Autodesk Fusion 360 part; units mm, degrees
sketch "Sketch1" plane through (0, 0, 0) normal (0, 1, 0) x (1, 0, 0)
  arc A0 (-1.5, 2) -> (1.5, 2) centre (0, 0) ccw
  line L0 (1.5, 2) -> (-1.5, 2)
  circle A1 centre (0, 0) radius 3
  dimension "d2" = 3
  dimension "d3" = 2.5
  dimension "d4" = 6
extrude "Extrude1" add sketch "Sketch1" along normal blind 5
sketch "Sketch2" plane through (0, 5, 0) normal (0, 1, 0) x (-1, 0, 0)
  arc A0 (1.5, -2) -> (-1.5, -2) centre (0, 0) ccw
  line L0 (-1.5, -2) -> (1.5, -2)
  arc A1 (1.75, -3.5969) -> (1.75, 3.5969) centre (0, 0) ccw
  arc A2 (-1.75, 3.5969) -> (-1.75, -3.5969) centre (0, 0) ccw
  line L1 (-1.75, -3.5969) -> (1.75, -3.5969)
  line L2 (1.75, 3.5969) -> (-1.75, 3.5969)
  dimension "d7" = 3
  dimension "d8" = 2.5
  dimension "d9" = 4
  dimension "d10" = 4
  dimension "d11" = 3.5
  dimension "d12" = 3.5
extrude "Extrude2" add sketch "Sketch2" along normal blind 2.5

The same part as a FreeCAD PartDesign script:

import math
import FreeCAD as App
import Part
import Sketcher

V = App.Vector

doc = App.newDocument("Part")
body = doc.addObject("PartDesign::Body", "Body")

# Sketch on XZ plane
sketch1 = body.newObject("Sketcher::SketchObject", "Sketch")
sketch1.AttachmentSupport = (doc.getObject("XZ_Plane"), [""])
sketch1.MapMode = "FlatFace"
sketch1.addGeometry(Part.Circle(V(0, 0, 0), V(0, 0, 1), 3), False)
sketch1.addGeometry(Part.ArcOfCircle(Part.Circle(V(0, 0, 0), V(0, 0, 1), 2.5), math.radians(-53.130102), math.radians(233.130102)), False)
sketch1.addGeometry(Part.LineSegment(V(-1.5, -2, 0), V(1.5, -2, 0)), False)
sketch1.addConstraint(Sketcher.Constraint("Coincident", 1, 1, 2, 2))
sketch1.addConstraint(Sketcher.Constraint("Coincident", 2, 1, 1, 2))
sketch1.addConstraint(Sketcher.Constraint("Horizontal", 2))
sketch1.addConstraint(Sketcher.Constraint("Coincident", 0, 3, -1, 1))
sketch1.addConstraint(Sketcher.Constraint("Coincident", 1, 3, -1, 1))
sketch1.addConstraint(Sketcher.Constraint("Diameter", 0, 6.0))
sketch1.addConstraint(Sketcher.Constraint("Radius", 1, 2.5))
sketch1.addConstraint(Sketcher.Constraint("DistanceX", 2, 1, 2, 2, 3.0))
pad1 = body.newObject("PartDesign::Pad", "Pad")
pad1.Profile = sketch1
pad1.Length = 5
pad1.Reversed = True

# Sketch on XZ plane
sketch2 = body.newObject("Sketcher::SketchObject", "Sketch001")
sketch2.AttachmentSupport = (doc.getObject("XZ_Plane"), [""])
sketch2.MapMode = "FlatFace"
sketch2.AttachmentOffset = App.Placement(V(0, 0, -5), App.Rotation())
sketch2.addGeometry(Part.LineSegment(V(1.75, -3.5969, 0), V(-1.75, -3.5969, 0)), False)
sketch2.addGeometry(Part.ArcOfCircle(Part.Circle(V(0, 0, 0), V(0, 0, 1), 4.000024), math.radians(115.944315), math.radians(244.055685)), False)
sketch2.addGeometry(Part.LineSegment(V(-1.75, 3.5969, 0), V(1.75, 3.5969, 0)), False)
sketch2.addGeometry(Part.ArcOfCircle(Part.Circle(V(0, 0, 0), V(0, 0, 1), 4.000024), math.radians(-64.055685), math.radians(64.055685)), False)
sketch2.addGeometry(Part.ArcOfCircle(Part.Circle(V(0, 0, 0), V(0, 0, 1), 2.5), math.radians(-53.130102), math.radians(233.130102)), False)
sketch2.addGeometry(Part.LineSegment(V(-1.5, -2, 0), V(1.5, -2, 0)), False)
sketch2.addConstraint(Sketcher.Constraint("Coincident", 0, 2, 1, 2))
sketch2.addConstraint(Sketcher.Constraint("Coincident", 1, 1, 2, 1))
sketch2.addConstraint(Sketcher.Constraint("Coincident", 2, 2, 3, 2))
sketch2.addConstraint(Sketcher.Constraint("Coincident", 3, 1, 0, 1))
sketch2.addConstraint(Sketcher.Constraint("Coincident", 4, 1, 5, 2))
sketch2.addConstraint(Sketcher.Constraint("Coincident", 5, 1, 4, 2))
sketch2.addConstraint(Sketcher.Constraint("Horizontal", 0))
sketch2.addConstraint(Sketcher.Constraint("Horizontal", 2))
sketch2.addConstraint(Sketcher.Constraint("Horizontal", 5))
sketch2.addConstraint(Sketcher.Constraint("Coincident", 1, 3, -1, 1))
sketch2.addConstraint(Sketcher.Constraint("Coincident", 3, 3, -1, 1))
sketch2.addConstraint(Sketcher.Constraint("Coincident", 4, 3, -1, 1))
sketch2.addConstraint(Sketcher.Constraint("Equal", 1, 3))
sketch2.addConstraint(Sketcher.Constraint("Vertical", 0, 2, 1, 1))
sketch2.addConstraint(Sketcher.Constraint("Radius", 1, 4.0))
sketch2.addConstraint(Sketcher.Constraint("Radius", 4, 2.5))
sketch2.addConstraint(Sketcher.Constraint("DistanceX", 5, 1, 5, 2, 3.0))
sketch2.addConstraint(Sketcher.Constraint("DistanceX", 0, 2, 0, 1, 3.5))
pad2 = body.newObject("PartDesign::Pad", "Pad001")
pad2.Profile = sketch2
pad2.Length = 2.5
pad2.Reversed = True

doc.recompute()
